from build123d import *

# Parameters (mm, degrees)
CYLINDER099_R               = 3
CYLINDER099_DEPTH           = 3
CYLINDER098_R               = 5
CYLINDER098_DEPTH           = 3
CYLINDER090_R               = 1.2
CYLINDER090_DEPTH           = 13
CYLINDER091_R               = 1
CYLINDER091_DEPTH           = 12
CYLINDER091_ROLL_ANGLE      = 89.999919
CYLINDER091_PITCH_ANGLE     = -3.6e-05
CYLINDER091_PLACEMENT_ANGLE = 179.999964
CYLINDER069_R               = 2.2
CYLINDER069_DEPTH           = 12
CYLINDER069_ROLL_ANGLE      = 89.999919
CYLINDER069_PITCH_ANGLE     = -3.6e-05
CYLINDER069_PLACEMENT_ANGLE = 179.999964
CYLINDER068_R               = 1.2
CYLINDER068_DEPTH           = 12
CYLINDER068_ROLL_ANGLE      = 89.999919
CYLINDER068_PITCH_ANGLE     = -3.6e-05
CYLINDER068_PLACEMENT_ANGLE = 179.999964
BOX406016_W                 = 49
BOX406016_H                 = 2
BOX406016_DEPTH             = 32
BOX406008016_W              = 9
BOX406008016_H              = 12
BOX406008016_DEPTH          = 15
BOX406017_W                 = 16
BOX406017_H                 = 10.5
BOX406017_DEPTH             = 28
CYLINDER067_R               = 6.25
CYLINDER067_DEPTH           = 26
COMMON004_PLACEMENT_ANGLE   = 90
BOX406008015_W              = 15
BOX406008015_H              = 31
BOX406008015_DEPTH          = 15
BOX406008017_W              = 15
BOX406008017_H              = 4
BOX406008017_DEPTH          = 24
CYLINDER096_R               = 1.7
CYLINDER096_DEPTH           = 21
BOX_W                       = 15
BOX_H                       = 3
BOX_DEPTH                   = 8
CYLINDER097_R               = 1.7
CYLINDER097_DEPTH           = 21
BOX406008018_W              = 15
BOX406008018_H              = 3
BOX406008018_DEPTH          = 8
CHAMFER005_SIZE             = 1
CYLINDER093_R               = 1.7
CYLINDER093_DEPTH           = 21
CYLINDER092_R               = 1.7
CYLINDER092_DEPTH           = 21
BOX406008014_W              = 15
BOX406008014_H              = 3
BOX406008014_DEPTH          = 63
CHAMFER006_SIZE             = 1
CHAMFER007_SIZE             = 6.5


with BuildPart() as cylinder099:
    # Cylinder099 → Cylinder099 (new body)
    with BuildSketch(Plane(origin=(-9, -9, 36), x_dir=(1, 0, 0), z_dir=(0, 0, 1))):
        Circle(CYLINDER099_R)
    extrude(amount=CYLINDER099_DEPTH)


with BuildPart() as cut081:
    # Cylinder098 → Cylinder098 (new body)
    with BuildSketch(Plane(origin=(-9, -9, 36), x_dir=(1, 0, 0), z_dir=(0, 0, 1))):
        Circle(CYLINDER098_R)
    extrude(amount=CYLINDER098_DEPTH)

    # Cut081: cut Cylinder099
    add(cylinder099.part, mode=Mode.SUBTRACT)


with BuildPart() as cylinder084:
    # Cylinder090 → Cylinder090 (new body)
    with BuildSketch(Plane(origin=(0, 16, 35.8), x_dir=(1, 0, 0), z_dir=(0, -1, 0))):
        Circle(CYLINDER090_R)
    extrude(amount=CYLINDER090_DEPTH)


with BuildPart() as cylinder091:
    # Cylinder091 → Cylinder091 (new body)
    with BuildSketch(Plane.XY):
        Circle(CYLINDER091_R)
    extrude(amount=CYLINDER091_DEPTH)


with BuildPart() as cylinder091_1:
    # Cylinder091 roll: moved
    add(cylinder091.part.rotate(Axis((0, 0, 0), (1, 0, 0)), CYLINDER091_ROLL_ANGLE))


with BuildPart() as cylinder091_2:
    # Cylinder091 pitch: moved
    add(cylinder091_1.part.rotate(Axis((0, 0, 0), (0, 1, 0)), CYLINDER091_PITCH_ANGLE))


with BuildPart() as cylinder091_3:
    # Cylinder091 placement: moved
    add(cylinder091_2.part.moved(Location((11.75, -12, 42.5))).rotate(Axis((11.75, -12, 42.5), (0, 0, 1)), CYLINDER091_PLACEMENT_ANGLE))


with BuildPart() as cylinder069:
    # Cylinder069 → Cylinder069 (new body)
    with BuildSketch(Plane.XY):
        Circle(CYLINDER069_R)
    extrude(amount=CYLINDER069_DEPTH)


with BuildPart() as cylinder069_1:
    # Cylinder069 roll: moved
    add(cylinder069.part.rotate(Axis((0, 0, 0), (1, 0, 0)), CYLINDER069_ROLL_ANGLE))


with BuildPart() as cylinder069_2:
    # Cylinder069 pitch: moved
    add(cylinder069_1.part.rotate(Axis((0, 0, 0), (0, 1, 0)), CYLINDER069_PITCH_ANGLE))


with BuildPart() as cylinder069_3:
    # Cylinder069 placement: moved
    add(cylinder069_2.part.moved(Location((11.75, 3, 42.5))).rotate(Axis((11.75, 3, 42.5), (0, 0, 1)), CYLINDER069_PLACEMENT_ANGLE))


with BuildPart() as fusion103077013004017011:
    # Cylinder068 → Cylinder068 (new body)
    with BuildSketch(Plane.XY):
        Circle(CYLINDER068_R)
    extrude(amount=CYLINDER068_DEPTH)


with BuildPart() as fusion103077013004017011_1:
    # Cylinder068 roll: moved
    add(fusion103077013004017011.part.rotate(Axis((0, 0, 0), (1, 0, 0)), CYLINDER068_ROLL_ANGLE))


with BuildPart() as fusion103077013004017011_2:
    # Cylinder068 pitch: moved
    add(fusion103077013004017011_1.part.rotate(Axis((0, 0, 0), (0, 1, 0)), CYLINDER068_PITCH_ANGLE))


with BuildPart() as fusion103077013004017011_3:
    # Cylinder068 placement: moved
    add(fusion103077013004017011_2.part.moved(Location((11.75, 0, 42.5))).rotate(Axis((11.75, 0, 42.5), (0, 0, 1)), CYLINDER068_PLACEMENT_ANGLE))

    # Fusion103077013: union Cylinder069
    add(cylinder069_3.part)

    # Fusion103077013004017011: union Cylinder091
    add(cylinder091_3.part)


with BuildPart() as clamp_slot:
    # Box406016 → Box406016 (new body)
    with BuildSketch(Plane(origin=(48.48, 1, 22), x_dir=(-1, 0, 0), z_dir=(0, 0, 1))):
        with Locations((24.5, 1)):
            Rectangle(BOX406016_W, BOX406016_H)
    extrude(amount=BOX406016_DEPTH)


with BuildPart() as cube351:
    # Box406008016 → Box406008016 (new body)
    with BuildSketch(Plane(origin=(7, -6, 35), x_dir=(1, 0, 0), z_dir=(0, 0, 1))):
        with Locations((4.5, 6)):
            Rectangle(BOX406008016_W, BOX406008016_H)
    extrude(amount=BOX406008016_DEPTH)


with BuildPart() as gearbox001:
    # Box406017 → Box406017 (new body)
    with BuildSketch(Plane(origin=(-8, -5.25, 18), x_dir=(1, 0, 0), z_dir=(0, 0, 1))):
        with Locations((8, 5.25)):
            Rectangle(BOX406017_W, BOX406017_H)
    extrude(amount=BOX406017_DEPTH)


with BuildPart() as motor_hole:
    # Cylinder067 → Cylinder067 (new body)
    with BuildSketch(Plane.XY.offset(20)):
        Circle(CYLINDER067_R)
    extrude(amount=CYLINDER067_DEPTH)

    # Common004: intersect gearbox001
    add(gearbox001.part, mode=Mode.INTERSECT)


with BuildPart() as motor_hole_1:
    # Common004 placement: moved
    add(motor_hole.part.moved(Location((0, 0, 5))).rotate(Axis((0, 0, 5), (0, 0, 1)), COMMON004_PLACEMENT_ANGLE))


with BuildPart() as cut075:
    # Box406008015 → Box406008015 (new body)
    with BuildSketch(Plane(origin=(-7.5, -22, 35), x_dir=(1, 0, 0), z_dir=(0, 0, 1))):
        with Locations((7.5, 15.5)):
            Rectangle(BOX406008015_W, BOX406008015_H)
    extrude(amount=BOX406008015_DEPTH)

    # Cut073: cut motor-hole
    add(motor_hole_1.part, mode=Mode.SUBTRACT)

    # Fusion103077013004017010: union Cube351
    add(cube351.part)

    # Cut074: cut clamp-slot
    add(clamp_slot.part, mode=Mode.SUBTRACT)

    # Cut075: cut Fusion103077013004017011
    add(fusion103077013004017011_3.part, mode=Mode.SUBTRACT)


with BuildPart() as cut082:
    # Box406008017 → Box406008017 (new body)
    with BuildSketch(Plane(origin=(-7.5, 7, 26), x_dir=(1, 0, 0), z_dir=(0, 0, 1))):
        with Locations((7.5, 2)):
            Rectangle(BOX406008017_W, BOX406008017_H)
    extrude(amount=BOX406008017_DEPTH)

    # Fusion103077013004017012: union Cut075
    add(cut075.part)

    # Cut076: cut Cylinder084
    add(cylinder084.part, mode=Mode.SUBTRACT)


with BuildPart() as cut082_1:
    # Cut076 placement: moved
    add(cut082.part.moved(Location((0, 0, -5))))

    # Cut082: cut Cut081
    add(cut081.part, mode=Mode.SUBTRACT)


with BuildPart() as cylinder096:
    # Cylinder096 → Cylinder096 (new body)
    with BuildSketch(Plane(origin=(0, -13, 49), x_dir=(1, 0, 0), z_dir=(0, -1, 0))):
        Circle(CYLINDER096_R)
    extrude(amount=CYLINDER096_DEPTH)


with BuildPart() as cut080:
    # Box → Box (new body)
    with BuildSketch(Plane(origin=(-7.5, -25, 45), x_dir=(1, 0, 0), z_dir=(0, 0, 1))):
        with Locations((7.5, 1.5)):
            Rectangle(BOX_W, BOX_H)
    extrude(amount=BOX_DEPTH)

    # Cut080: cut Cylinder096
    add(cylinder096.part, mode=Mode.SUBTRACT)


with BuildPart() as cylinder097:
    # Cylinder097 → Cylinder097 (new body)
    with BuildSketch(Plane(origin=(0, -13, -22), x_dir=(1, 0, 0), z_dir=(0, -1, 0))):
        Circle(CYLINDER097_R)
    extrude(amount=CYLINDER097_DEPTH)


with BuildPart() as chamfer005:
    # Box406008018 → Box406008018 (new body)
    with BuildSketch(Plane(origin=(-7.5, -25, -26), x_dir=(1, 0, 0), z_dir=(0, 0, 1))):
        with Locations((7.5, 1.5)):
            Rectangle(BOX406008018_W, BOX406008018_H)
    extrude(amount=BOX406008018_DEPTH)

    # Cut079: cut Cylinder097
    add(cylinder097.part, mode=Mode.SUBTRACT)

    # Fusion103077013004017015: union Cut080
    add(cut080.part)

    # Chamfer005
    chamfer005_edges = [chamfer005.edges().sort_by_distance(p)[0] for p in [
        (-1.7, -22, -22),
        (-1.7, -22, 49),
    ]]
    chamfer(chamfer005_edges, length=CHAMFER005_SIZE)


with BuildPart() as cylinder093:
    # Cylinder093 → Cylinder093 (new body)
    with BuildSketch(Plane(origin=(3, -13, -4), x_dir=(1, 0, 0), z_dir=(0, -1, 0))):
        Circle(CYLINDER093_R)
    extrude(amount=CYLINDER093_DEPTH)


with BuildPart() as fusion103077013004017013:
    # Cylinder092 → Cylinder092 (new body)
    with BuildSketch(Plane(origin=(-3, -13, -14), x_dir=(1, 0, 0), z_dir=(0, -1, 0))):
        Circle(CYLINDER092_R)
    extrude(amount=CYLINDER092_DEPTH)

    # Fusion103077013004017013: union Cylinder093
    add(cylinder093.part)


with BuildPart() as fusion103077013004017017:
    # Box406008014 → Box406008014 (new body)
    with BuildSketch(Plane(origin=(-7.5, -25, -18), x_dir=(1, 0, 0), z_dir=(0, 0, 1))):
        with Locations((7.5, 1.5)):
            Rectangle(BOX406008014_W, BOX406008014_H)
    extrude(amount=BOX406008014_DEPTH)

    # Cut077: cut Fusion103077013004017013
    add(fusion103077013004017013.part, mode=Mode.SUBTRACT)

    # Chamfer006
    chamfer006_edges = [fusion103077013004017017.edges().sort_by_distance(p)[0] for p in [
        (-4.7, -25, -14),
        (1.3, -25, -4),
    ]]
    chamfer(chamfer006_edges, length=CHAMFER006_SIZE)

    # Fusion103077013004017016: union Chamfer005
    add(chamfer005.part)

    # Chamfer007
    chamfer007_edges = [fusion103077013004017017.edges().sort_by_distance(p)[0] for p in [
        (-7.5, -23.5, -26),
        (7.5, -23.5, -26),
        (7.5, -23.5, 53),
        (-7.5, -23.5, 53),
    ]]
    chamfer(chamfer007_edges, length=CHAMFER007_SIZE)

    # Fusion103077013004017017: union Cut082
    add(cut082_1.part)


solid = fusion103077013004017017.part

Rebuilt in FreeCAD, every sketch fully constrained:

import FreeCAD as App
import Part
import Sketcher

V = App.Vector


def edges_at(feature, points):
    """Names of the edges that pass closest to the given points."""
    edges = feature.Shape.Edges
    near = lambda p: min(range(len(edges)), key=lambda i: edges[i].distToShape(Part.Vertex(*p))[0])
    return sorted({f"Edge{near(p) + 1}" for p in points})


def add_polygon(sketch, points):
    """Adds a closed chain of lines whose ends are joined by coincident constraints."""
    first, n = sketch.GeometryCount, len(points)
    for a, b in zip(points, points[1:] + points[:1]):
        sketch.addGeometry(Part.LineSegment(App.Vector(*a, 0), App.Vector(*b, 0)), False)
    for i in range(n):
        sketch.addConstraint(Sketcher.Constraint("Coincident", first + i, 2, first + (i + 1) % n, 1))

doc = App.newDocument("Part")
params = doc.addObject("Spreadsheet::Sheet", "Params")
for row, (alias, value) in enumerate([
    ("sketch1_diameter", "6 mm"),
    ("pad1_length", "3 mm"),
    ("sketch2_diameter", "10 mm"),
    ("pad2_length", "3 mm"),
    ("sketch3_diameter", "2.4 mm"),
    ("pad3_length", "13 mm"),
    ("sketch4_diameter", "2 mm"),
    ("pad4_length", "12 mm"),
    ("sketch5_diameter", "4.4 mm"),
    ("pad5_length", "12 mm"),
    ("sketch6_diameter", "2.4 mm"),
    ("pad6_length", "12 mm"),
    ("sketch7_width", "49 mm"),
    ("sketch7_height", "2 mm"),
    ("pad7_length", "32 mm"),
    ("sketch8_width", "9 mm"),
    ("sketch8_height", "12 mm"),
    ("pad8_length", "15 mm"),
    ("sketch9_width", "16 mm"),
    ("sketch9_height", "10.5 mm"),
    ("pad9_length", "28 mm"),
    ("sketch10_diameter", "12.5 mm"),
    ("pad10_length", "26 mm"),
    ("sketch11_width", "15 mm"),
    ("sketch11_height", "31 mm"),
    ("pad11_length", "15 mm"),
    ("sketch12_width", "15 mm"),
    ("sketch12_height", "4 mm"),
    ("pad12_length", "24 mm"),
    ("sketch13_diameter", "3.4 mm"),
    ("pad13_length", "21 mm"),
    ("sketch14_width", "15 mm"),
    ("sketch14_height", "3 mm"),
    ("pad14_length", "8 mm"),
    ("sketch15_diameter", "3.4 mm"),
    ("pad15_length", "21 mm"),
    ("sketch16_width", "15 mm"),
    ("sketch16_height", "3 mm"),
    ("pad16_length", "8 mm"),
    ("chamfer_size", "1 mm"),
    ("sketch17_diameter", "3.4 mm"),
    ("pad17_length", "21 mm"),
    ("sketch18_diameter", "3.4 mm"),
    ("pad18_length", "21 mm"),
    ("sketch19_width", "15 mm"),
    ("sketch19_height", "3 mm"),
    ("pad19_length", "63 mm"),
    ("chamfer2_size", "1 mm"),
    ("chamfer3_size", "6.5 mm"),
], start=1):
    params.set(f"A{row}", alias)
    params.set(f"B{row}", "=" + value)
    params.setAlias(f"B{row}", alias)

body = doc.addObject("PartDesign::Body", "Body")

sketch1 = body.newObject("Sketcher::SketchObject", "Sketch")
sketch1.AttachmentSupport = (doc.getObject("XY_Plane"), [""])
sketch1.MapMode = "FlatFace"
sketch1.AttachmentOffset = App.Placement(V(0, 0, 36), App.Rotation())
sketch1.addGeometry(Part.Circle(V(-9, -9, 0), V(0, 0, 1), 3), False)
sketch1.addConstraint([
    Sketcher.Constraint("Diameter", 0, 6.0),
    Sketcher.Constraint("DistanceX", 0, 3, -1, 1, 9.0),
    Sketcher.Constraint("DistanceY", 0, 3, -1, 1, 9.0),
])
sketch1.setExpression("Constraints[0]", "Params.sketch1_diameter")
pad1 = body.newObject("PartDesign::Pad", "Pad")
pad1.Profile = sketch1
pad1.setExpression("Length", "Params.pad1_length")
body2 = doc.addObject("PartDesign::Body", "Body001")

sketch2 = body2.newObject("Sketcher::SketchObject", "Sketch001")
sketch2.AttachmentSupport = (doc.getObject("XY_Plane001"), [""])
sketch2.MapMode = "FlatFace"
sketch2.AttachmentOffset = App.Placement(V(0, 0, 36), App.Rotation())
sketch2.addGeometry(Part.Circle(V(-9, -9, 0), V(0, 0, 1), 5), False)
sketch2.addConstraint([
    Sketcher.Constraint("Diameter", 0, 10.0),
    Sketcher.Constraint("DistanceX", 0, 3, -1, 1, 9.0),
    Sketcher.Constraint("DistanceY", 0, 3, -1, 1, 9.0),
])
sketch2.setExpression("Constraints[0]", "Params.sketch2_diameter")
pad2 = body2.newObject("PartDesign::Pad", "Pad001")
pad2.Profile = sketch2
pad2.setExpression("Length", "Params.pad2_length")
doc.recompute()

boolean = body2.newObject("PartDesign::Boolean", "Boolean")
boolean.Type = "Cut"
boolean.addObjects([body])
body3 = doc.addObject("PartDesign::Body", "Body002")

sketch3 = body3.newObject("Sketcher::SketchObject", "Sketch002")
sketch3.AttachmentSupport = (doc.getObject("XZ_Plane002"), [""])
sketch3.MapMode = "FlatFace"
sketch3.AttachmentOffset = App.Placement(V(0, 0, -16), App.Rotation())
sketch3.addGeometry(Part.Circle(V(0, 35.8, 0), V(0, 0, 1), 1.2), False)
sketch3.addConstraint([
    Sketcher.Constraint("PointOnObject", 0, 3, -2),
    Sketcher.Constraint("Diameter", 0, 2.4),
    Sketcher.Constraint("DistanceY", -1, 1, 0, 3, 35.8),
])
sketch3.setExpression("Constraints[1]", "Params.sketch3_diameter")
pad3 = body3.newObject("PartDesign::Pad", "Pad002")
pad3.Profile = sketch3
pad3.setExpression("Length", "Params.pad3_length")
body4 = doc.addObject("PartDesign::Body", "Body003")

sketch4 = body4.newObject("Sketcher::SketchObject", "Sketch003")
sketch4.AttachmentSupport = (doc.getObject("XY_Plane003"), [""])
sketch4.MapMode = "FlatFace"
sketch4.addGeometry(Part.Circle(V(0, 0, 0), V(0, 0, 1), 1), False)
sketch4.addConstraint([
    Sketcher.Constraint("Coincident", 0, 3, -1, 1),
    Sketcher.Constraint("Diameter", 0, 2.0),
])
sketch4.setExpression("Constraints[1]", "Params.sketch4_diameter")
pad4 = body4.newObject("PartDesign::Pad", "Pad003")
pad4.Profile = sketch4
pad4.setExpression("Length", "Params.pad4_length")
body5 = doc.addObject("PartDesign::Body", "Body004")
doc.recompute()

body4.Placement = App.Placement(V(0, 0, 0), App.Rotation(V(1, 0, 0), 89.999919))
boolean2 = body5.newObject("PartDesign::Boolean", "Boolean001")
boolean2.Type = "Fuse"
boolean2.addObjects([body4])
body6 = doc.addObject("PartDesign::Body", "Body005")
doc.recompute()

body5.Placement = App.Placement(V(0, 0, 0), App.Rotation(V(0, 1, 0), 359.999964))
boolean3 = body6.newObject("PartDesign::Boolean", "Boolean002")
boolean3.Type = "Fuse"
boolean3.addObjects([body5])
body7 = doc.addObject("PartDesign::Body", "Body006")
doc.recompute()

body6.Placement = App.Placement(V(11.75, -12, 42.5), App.Rotation(V(0, 0, 1), 179.999964))
boolean4 = body7.newObject("PartDesign::Boolean", "Boolean003")
boolean4.Type = "Fuse"
boolean4.addObjects([body6])
body8 = doc.addObject("PartDesign::Body", "Body007")

sketch5 = body8.newObject("Sketcher::SketchObject", "Sketch004")
sketch5.AttachmentSupport = (doc.getObject("XY_Plane007"), [""])
sketch5.MapMode = "FlatFace"
sketch5.addGeometry(Part.Circle(V(0, 0, 0), V(0, 0, 1), 2.2), False)
sketch5.addConstraint([
    Sketcher.Constraint("Coincident", 0, 3, -1, 1),
    Sketcher.Constraint("Diameter", 0, 4.4),
])
sketch5.setExpression("Constraints[1]", "Params.sketch5_diameter")
pad5 = body8.newObject("PartDesign::Pad", "Pad004")
pad5.Profile = sketch5
pad5.setExpression("Length", "Params.pad5_length")
body9 = doc.addObject("PartDesign::Body", "Body008")
doc.recompute()

body8.Placement = App.Placement(V(0, 0, 0), App.Rotation(V(1, 0, 0), 89.999919))
boolean5 = body9.newObject("PartDesign::Boolean", "Boolean004")
boolean5.Type = "Fuse"
boolean5.addObjects([body8])
body10 = doc.addObject("PartDesign::Body", "Body009")
doc.recompute()

body9.Placement = App.Placement(V(0, 0, 0), App.Rotation(V(0, 1, 0), 359.999964))
boolean6 = body10.newObject("PartDesign::Boolean", "Boolean005")
boolean6.Type = "Fuse"
boolean6.addObjects([body9])
body11 = doc.addObject("PartDesign::Body", "Body010")
doc.recompute()

body10.Placement = App.Placement(V(11.75, 3, 42.5), App.Rotation(V(0, 0, 1), 179.999964))
boolean7 = body11.newObject("PartDesign::Boolean", "Boolean006")
boolean7.Type = "Fuse"
boolean7.addObjects([body10])
body12 = doc.addObject("PartDesign::Body", "Body011")

sketch6 = body12.newObject("Sketcher::SketchObject", "Sketch005")
sketch6.AttachmentSupport = (doc.getObject("XY_Plane011"), [""])
sketch6.MapMode = "FlatFace"
sketch6.addGeometry(Part.Circle(V(0, 0, 0), V(0, 0, 1), 1.2), False)
sketch6.addConstraint([
    Sketcher.Constraint("Coincident", 0, 3, -1, 1),
    Sketcher.Constraint("Diameter", 0, 2.4),
])
sketch6.setExpression("Constraints[1]", "Params.sketch6_diameter")
pad6 = body12.newObject("PartDesign::Pad", "Pad005")
pad6.Profile = sketch6
pad6.setExpression("Length", "Params.pad6_length")
body13 = doc.addObject("PartDesign::Body", "Body012")
doc.recompute()

body12.Placement = App.Placement(V(0, 0, 0), App.Rotation(V(1, 0, 0), 89.999919))
boolean8 = body13.newObject("PartDesign::Boolean", "Boolean007")
boolean8.Type = "Fuse"
boolean8.addObjects([body12])
body14 = doc.addObject("PartDesign::Body", "Body013")
doc.recompute()

body13.Placement = App.Placement(V(0, 0, 0), App.Rotation(V(0, 1, 0), 359.999964))
boolean9 = body14.newObject("PartDesign::Boolean", "Boolean008")
boolean9.Type = "Fuse"
boolean9.addObjects([body13])
body15 = doc.addObject("PartDesign::Body", "Body014")
doc.recompute()

body14.Placement = App.Placement(V(11.75, 0, 42.5), App.Rotation(V(0, 0, 1), 179.999964))
boolean10 = body15.newObject("PartDesign::Boolean", "Boolean009")
boolean10.Type = "Fuse"
boolean10.addObjects([body14])
doc.recompute()

boolean11 = body15.newObject("PartDesign::Boolean", "Boolean010")
boolean11.Type = "Fuse"
boolean11.addObjects([body11])
doc.recompute()

boolean12 = body15.newObject("PartDesign::Boolean", "Boolean011")
boolean12.Type = "Fuse"
boolean12.addObjects([body7])
body16 = doc.addObject("PartDesign::Body", "Body015")

sketch7 = body16.newObject("Sketcher::SketchObject", "Sketch006")
sketch7.AttachmentSupport = (doc.getObject("XY_Plane015"), [""])
sketch7.MapMode = "FlatFace"
sketch7.AttachmentOffset = App.Placement(V(0, 0, 22), App.Rotation())
add_polygon(sketch7, [(48.5, -1), (48.5, 1), (-0.5, 1), (-0.5, -1)])
sketch7.addConstraint([
    Sketcher.Constraint("Vertical", 0),
    Sketcher.Constraint("Horizontal", 1),
    Sketcher.Constraint("Vertical", 2),
    Sketcher.Constraint("Horizontal", 3),
    Sketcher.Constraint("DistanceX", 1, 2, 1, 1, 49.0),
    Sketcher.Constraint("DistanceY", 0, 1, 0, 2, 2.0),
    Sketcher.Constraint("DistanceY", -1, 1, 0, 2, 1.0),
    Sketcher.Constraint("DistanceX", -1, 1, 0, 2, 48.48),
])
sketch7.setExpression("Constraints[8]", "Params.sketch7_width")
sketch7.setExpression("Constraints[9]", "Params.sketch7_height")
pad7 = body16.newObject("PartDesign::Pad", "Pad006")
pad7.Profile = sketch7
pad7.setExpression("Length", "Params.pad7_length")
body17 = doc.addObject("PartDesign::Body", "Body016")

sketch8 = body17.newObject("Sketcher::SketchObject", "Sketch007")
sketch8.AttachmentSupport = (doc.getObject("XY_Plane016"), [""])
sketch8.MapMode = "FlatFace"
sketch8.AttachmentOffset = App.Placement(V(0, 0, 35), App.Rotation())
add_polygon(sketch8, [(7, 6), (7, -6), (16, -6), (16, 6)])
sketch8.addConstraint([
    Sketcher.Constraint("Vertical", 0),
    Sketcher.Constraint("Horizontal", 1),
    Sketcher.Constraint("Vertical", 2),
    Sketcher.Constraint("Horizontal", 3),
    Sketcher.Constraint("DistanceX", 1, 1, 1, 2, 9.0),
    Sketcher.Constraint("DistanceY", 0, 2, 0, 1, 12.0),
    Sketcher.Constraint("DistanceX", -1, 1, 0, 2, 7.0),
    Sketcher.Constraint("DistanceY", 0, 2, -1, 1, 6.0),
])
sketch8.setExpression("Constraints[8]", "Params.sketch8_width")
sketch8.setExpression("Constraints[9]", "Params.sketch8_height")
pad8 = body17.newObject("PartDesign::Pad", "Pad007")
pad8.Profile = sketch8
pad8.setExpression("Length", "Params.pad8_length")
body18 = doc.addObject("PartDesign::Body", "Body017")

sketch9 = body18.newObject("Sketcher::SketchObject", "Sketch008")
sketch9.AttachmentSupport = (doc.getObject("XY_Plane017"), [""])
sketch9.MapMode = "FlatFace"
sketch9.AttachmentOffset = App.Placement(V(0, 0, 18), App.Rotation())
add_polygon(sketch9, [(-8, 5), (-8, -5), (8, -5), (8, 5)])
sketch9.addConstraint([
    Sketcher.Constraint("Vertical", 0),
    Sketcher.Constraint("Horizontal", 1),
    Sketcher.Constraint("Vertical", 2),
    Sketcher.Constraint("Horizontal", 3),
    Sketcher.Constraint("Symmetric", 0, 2, 2, 2, -1, 1),
    Sketcher.Constraint("DistanceX", 1, 1, 1, 2, 16.0),
    Sketcher.Constraint("DistanceY", 0, 2, 0, 1, 10.5),
])
sketch9.setExpression("Constraints[9]", "Params.sketch9_width")
sketch9.setExpression("Constraints[10]", "Params.sketch9_height")
pad9 = body18.newObject("PartDesign::Pad", "Pad008")
pad9.Profile = sketch9
pad9.setExpression("Length", "Params.pad9_length")
body19 = doc.addObject("PartDesign::Body", "Body018")

sketch10 = body19.newObject("Sketcher::SketchObject", "Sketch009")
sketch10.AttachmentSupport = (doc.getObject("XY_Plane018"), [""])
sketch10.MapMode = "FlatFace"
sketch10.AttachmentOffset = App.Placement(V(0, 0, 20), App.Rotation())
sketch10.addGeometry(Part.Circle(V(0, 0, 0), V(0, 0, 1), 6), False)
sketch10.addConstraint([
    Sketcher.Constraint("Coincident", 0, 3, -1, 1),
    Sketcher.Constraint("Diameter", 0, 12.5),
])
sketch10.setExpression("Constraints[1]", "Params.sketch10_diameter")
pad10 = body19.newObject("PartDesign::Pad", "Pad009")
pad10.Profile = sketch10
pad10.setExpression("Length", "Params.pad10_length")
doc.recompute()

boolean13 = body19.newObject("PartDesign::Boolean", "Boolean012")
boolean13.Type = "Common"
boolean13.addObjects([body18])
body20 = doc.addObject("PartDesign::Body", "Body019")
doc.recompute()

body19.Placement = App.Placement(V(0, 0, 5), App.Rotation(V(0, 0, 1), 90))
boolean14 = body20.newObject("PartDesign::Boolean", "Boolean013")
boolean14.Type = "Fuse"
boolean14.addObjects([body19])
body21 = doc.addObject("PartDesign::Body", "Body020")

sketch11 = body21.newObject("Sketcher::SketchObject", "Sketch010")
sketch11.AttachmentSupport = (doc.getObject("XY_Plane020"), [""])
sketch11.MapMode = "FlatFace"
sketch11.AttachmentOffset = App.Placement(V(0, 0, 35), App.Rotation())
add_polygon(sketch11, [(-8, 9), (-8, -22), (8, -22), (8, 9)])
sketch11.addConstraint([
    Sketcher.Constraint("Vertical", 0),
    Sketcher.Constraint("Horizontal", 1),
    Sketcher.Constraint("Vertical", 2),
    Sketcher.Constraint("Horizontal", 3),
    Sketcher.Constraint("DistanceX", 1, 1, 1, 2, 15.0),
    Sketcher.Constraint("DistanceY", 0, 2, 0, 1, 31.0),
    Sketcher.Constraint("DistanceY", 0, 2, -1, 1, 22.0),
    Sketcher.Constraint("DistanceX", 0, 2, -1, 1, 7.5),
])
sketch11.setExpression("Constraints[8]", "Params.sketch11_width")
sketch11.setExpression("Constraints[9]", "Params.sketch11_height")
pad11 = body21.newObject("PartDesign::Pad", "Pad010")
pad11.Profile = sketch11
pad11.setExpression("Length", "Params.pad11_length")
doc.recompute()

boolean15 = body21.newObject("PartDesign::Boolean", "Boolean014")
boolean15.Type = "Cut"
boolean15.addObjects([body20])
doc.recompute()

boolean16 = body21.newObject("PartDesign::Boolean", "Boolean015")
boolean16.Type = "Fuse"
boolean16.addObjects([body17])
doc.recompute()

boolean17 = body21.newObject("PartDesign::Boolean", "Boolean016")
boolean17.Type = "Cut"
boolean17.addObjects([body16])
doc.recompute()

boolean18 = body21.newObject("PartDesign::Boolean", "Boolean017")
boolean18.Type = "Cut"
boolean18.addObjects([body15])
body22 = doc.addObject("PartDesign::Body", "Body021")

sketch12 = body22.newObject("Sketcher::SketchObject", "Sketch011")
sketch12.AttachmentSupport = (doc.getObject("XY_Plane021"), [""])
sketch12.MapMode = "FlatFace"
sketch12.AttachmentOffset = App.Placement(V(0, 0, 26), App.Rotation())
add_polygon(sketch12, [(-7.5, 11), (-7.5, 7), (7.5, 7), (7.5, 11)])
sketch12.addConstraint([
    Sketcher.Constraint("Vertical", 0),
    Sketcher.Constraint("Horizontal", 1),
    Sketcher.Constraint("Vertical", 2),
    Sketcher.Constraint("Horizontal", 3),
    Sketcher.Constraint("DistanceX", 1, 1, 1, 2, 15.0),
    Sketcher.Constraint("DistanceY", 0, 2, 0, 1, 4.0),
    Sketcher.Constraint("DistanceY", -1, 1, 0, 2, 7.0),
    Sketcher.Constraint("DistanceX", 0, 2, -1, 1, 7.5),
])
sketch12.setExpression("Constraints[8]", "Params.sketch12_width")
sketch12.setExpression("Constraints[9]", "Params.sketch12_height")
pad12 = body22.newObject("PartDesign::Pad", "Pad011")
pad12.Profile = sketch12
pad12.setExpression("Length", "Params.pad12_length")
doc.recompute()

boolean19 = body22.newObject("PartDesign::Boolean", "Boolean018")
boolean19.Type = "Fuse"
boolean19.addObjects([body21])
doc.recompute()

boolean20 = body22.newObject("PartDesign::Boolean", "Boolean019")
boolean20.Type = "Cut"
boolean20.addObjects([body3])
body23 = doc.addObject("PartDesign::Body", "Body022")
doc.recompute()

body22.Placement = App.Placement(V(0, 0, -5), App.Rotation(V(0, 0, 1), 0))
boolean21 = body23.newObject("PartDesign::Boolean", "Boolean020")
boolean21.Type = "Fuse"
boolean21.addObjects([body22])
doc.recompute()

boolean22 = body23.newObject("PartDesign::Boolean", "Boolean021")
boolean22.Type = "Cut"
boolean22.addObjects([body2])
body24 = doc.addObject("PartDesign::Body", "Body023")

sketch13 = body24.newObject("Sketcher::SketchObject", "Sketch012")
sketch13.AttachmentSupport = (doc.getObject("XZ_Plane023"), [""])
sketch13.MapMode = "FlatFace"
sketch13.AttachmentOffset = App.Placement(V(0, 0, 13), App.Rotation())
sketch13.addGeometry(Part.Circle(V(0, 49, 0), V(0, 0, 1), 1.7), False)
sketch13.addConstraint([
    Sketcher.Constraint("PointOnObject", 0, 3, -2),
    Sketcher.Constraint("Diameter", 0, 3.4),
    Sketcher.Constraint("DistanceY", -1, 1, 0, 3, 49.0),
])
sketch13.setExpression("Constraints[1]", "Params.sketch13_diameter")
pad13 = body24.newObject("PartDesign::Pad", "Pad012")
pad13.Profile = sketch13
pad13.setExpression("Length", "Params.pad13_length")
body25 = doc.addObject("PartDesign::Body", "Body024")

sketch14 = body25.newObject("Sketcher::SketchObject", "Sketch013")
sketch14.AttachmentSupport = (doc.getObject("XY_Plane024"), [""])
sketch14.MapMode = "FlatFace"
sketch14.AttachmentOffset = App.Placement(V(0, 0, 45), App.Rotation())
add_polygon(sketch14, [(-7.5, -22), (-7.5, -25), (7.5, -25), (7.5, -22)])
sketch14.addConstraint([
    Sketcher.Constraint("Vertical", 0),
    Sketcher.Constraint("Horizontal", 1),
    Sketcher.Constraint("Vertical", 2),
    Sketcher.Constraint("Horizontal", 3),
    Sketcher.Constraint("DistanceX", 1, 1, 1, 2, 15.0),
    Sketcher.Constraint("DistanceY", 0, 2, 0, 1, 3.0),
    Sketcher.Constraint("DistanceY", 0, 2, -1, 1, 25.0),
    Sketcher.Constraint("DistanceX", 0, 2, -1, 1, 7.5),
])
sketch14.setExpression("Constraints[8]", "Params.sketch14_width")
sketch14.setExpression("Constraints[9]", "Params.sketch14_height")
pad14 = body25.newObject("PartDesign::Pad", "Pad013")
pad14.Profile = sketch14
pad14.setExpression("Length", "Params.pad14_length")
doc.recompute()

boolean23 = body25.newObject("PartDesign::Boolean", "Boolean022")
boolean23.Type = "Cut"
boolean23.addObjects([body24])
body26 = doc.addObject("PartDesign::Body", "Body025")

sketch15 = body26.newObject("Sketcher::SketchObject", "Sketch014")
sketch15.AttachmentSupport = (doc.getObject("XZ_Plane025"), [""])
sketch15.MapMode = "FlatFace"
sketch15.AttachmentOffset = App.Placement(V(0, 0, 13), App.Rotation())
sketch15.addGeometry(Part.Circle(V(0, -22, 0), V(0, 0, 1), 1.7), False)
sketch15.addConstraint([
    Sketcher.Constraint("PointOnObject", 0, 3, -2),
    Sketcher.Constraint("Diameter", 0, 3.4),
    Sketcher.Constraint("DistanceY", 0, 3, -1, 1, 22.0),
])
sketch15.setExpression("Constraints[1]", "Params.sketch15_diameter")
pad15 = body26.newObject("PartDesign::Pad", "Pad014")
pad15.Profile = sketch15
pad15.setExpression("Length", "Params.pad15_length")
body27 = doc.addObject("PartDesign::Body", "Body026")
body27.AllowCompound = True

sketch16 = body27.newObject("Sketcher::SketchObject", "Sketch015")
sketch16.AttachmentSupport = (doc.getObject("XY_Plane026"), [""])
sketch16.MapMode = "FlatFace"
sketch16.AttachmentOffset = App.Placement(V(0, 0, -26), App.Rotation())
add_polygon(sketch16, [(-7.5, -22), (-7.5, -25), (7.5, -25), (7.5, -22)])
sketch16.addConstraint([
    Sketcher.Constraint("Vertical", 0),
    Sketcher.Constraint("Horizontal", 1),
    Sketcher.Constraint("Vertical", 2),
    Sketcher.Constraint("Horizontal", 3),
    Sketcher.Constraint("DistanceX", 1, 1, 1, 2, 15.0),
    Sketcher.Constraint("DistanceY", 0, 2, 0, 1, 3.0),
    Sketcher.Constraint("DistanceY", 0, 2, -1, 1, 25.0),
    Sketcher.Constraint("DistanceX", 0, 2, -1, 1, 7.5),
])
sketch16.setExpression("Constraints[8]", "Params.sketch16_width")
sketch16.setExpression("Constraints[9]", "Params.sketch16_height")
pad16 = body27.newObject("PartDesign::Pad", "Pad015")
pad16.Profile = sketch16
pad16.setExpression("Length", "Params.pad16_length")
doc.recompute()

boolean24 = body27.newObject("PartDesign::Boolean", "Boolean023")
boolean24.Type = "Cut"
boolean24.addObjects([body26])
doc.recompute()

boolean25 = body27.newObject("PartDesign::Boolean", "Boolean024")
boolean25.Type = "Fuse"
boolean25.addObjects([body25])
doc.recompute()

chamfer = body27.newObject("PartDesign::Chamfer", "Chamfer")
chamfer.Base = (boolean25, edges_at(boolean25, [(-1.7, -22, -22), (-1.7, -22, 49)]))
chamfer.setExpression("Size", "Params.chamfer_size")
body28 = doc.addObject("PartDesign::Body", "Body027")

sketch17 = body28.newObject("Sketcher::SketchObject", "Sketch016")
sketch17.AttachmentSupport = (doc.getObject("XZ_Plane027"), [""])
sketch17.MapMode = "FlatFace"
sketch17.AttachmentOffset = App.Placement(V(0, 0, 13), App.Rotation())
sketch17.addGeometry(Part.Circle(V(3, -4, 0), V(0, 0, 1), 1.7), False)
sketch17.addConstraint([
    Sketcher.Constraint("Diameter", 0, 3.4),
    Sketcher.Constraint("DistanceX", -1, 1, 0, 3, 3.0),
    Sketcher.Constraint("DistanceY", 0, 3, -1, 1, 4.0),
])
sketch17.setExpression("Constraints[0]", "Params.sketch17_diameter")
pad17 = body28.newObject("PartDesign::Pad", "Pad016")
pad17.Profile = sketch17
pad17.setExpression("Length", "Params.pad17_length")
body29 = doc.addObject("PartDesign::Body", "Body028")
body29.AllowCompound = True

sketch18 = body29.newObject("Sketcher::SketchObject", "Sketch017")
sketch18.AttachmentSupport = (doc.getObject("XZ_Plane028"), [""])
sketch18.MapMode = "FlatFace"
sketch18.AttachmentOffset = App.Placement(V(0, 0, 13), App.Rotation())
sketch18.addGeometry(Part.Circle(V(-3, -14, 0), V(0, 0, 1), 1.7), False)
sketch18.addConstraint([
    Sketcher.Constraint("Diameter", 0, 3.4),
    Sketcher.Constraint("DistanceX", 0, 3, -1, 1, 3.0),
    Sketcher.Constraint("DistanceY", 0, 3, -1, 1, 14.0),
])
sketch18.setExpression("Constraints[0]", "Params.sketch18_diameter")
pad18 = body29.newObject("PartDesign::Pad", "Pad017")
pad18.Profile = sketch18
pad18.setExpression("Length", "Params.pad18_length")
doc.recompute()

boolean26 = body29.newObject("PartDesign::Boolean", "Boolean025")
boolean26.Type = "Fuse"
boolean26.addObjects([body28])
body30 = doc.addObject("PartDesign::Body", "Body029")

sketch19 = body30.newObject("Sketcher::SketchObject", "Sketch018")
sketch19.AttachmentSupport = (doc.getObject("XY_Plane029"), [""])
sketch19.MapMode = "FlatFace"
sketch19.AttachmentOffset = App.Placement(V(0, 0, -18), App.Rotation())
add_polygon(sketch19, [(-7.5, -22), (-7.5, -25), (7.5, -25), (7.5, -22)])
sketch19.addConstraint([
    Sketcher.Constraint("Vertical", 0),
    Sketcher.Constraint("Horizontal", 1),
    Sketcher.Constraint("Vertical", 2),
    Sketcher.Constraint("Horizontal", 3),
    Sketcher.Constraint("DistanceX", 1, 1, 1, 2, 15.0),
    Sketcher.Constraint("DistanceY", 0, 2, 0, 1, 3.0),
    Sketcher.Constraint("DistanceY", 0, 2, -1, 1, 25.0),
    Sketcher.Constraint("DistanceX", 0, 2, -1, 1, 7.5),
])
sketch19.setExpression("Constraints[8]", "Params.sketch19_width")
sketch19.setExpression("Constraints[9]", "Params.sketch19_height")
pad19 = body30.newObject("PartDesign::Pad", "Pad018")
pad19.Profile = sketch19
pad19.setExpression("Length", "Params.pad19_length")
doc.recompute()

boolean27 = body30.newObject("PartDesign::Boolean", "Boolean026")
boolean27.Type = "Cut"
boolean27.addObjects([body29])
doc.recompute()

chamfer2 = body30.newObject("PartDesign::Chamfer", "Chamfer001")
chamfer2.Base = (boolean27, edges_at(boolean27, [(-4.7, -25, -14), (1.3, -25, -4)]))
chamfer2.setExpression("Size", "Params.chamfer2_size")
doc.recompute()

boolean28 = body30.newObject("PartDesign::Boolean", "Boolean027")
boolean28.Type = "Fuse"
boolean28.addObjects([body27])
doc.recompute()

chamfer3 = body30.newObject("PartDesign::Chamfer", "Chamfer002")
chamfer3.Base = (boolean28, edges_at(boolean28, [
    (-7.5, -23.5, -26),
    (7.5, -23.5, -26),
    (7.5, -23.5, 53),
    (-7.5, -23.5, 53),
]))
chamfer3.setExpression("Size", "Params.chamfer3_size")
doc.recompute()

boolean29 = body30.newObject("PartDesign::Boolean", "Boolean028")
boolean29.Type = "Fuse"
boolean29.addObjects([body23])

doc.recompute()
